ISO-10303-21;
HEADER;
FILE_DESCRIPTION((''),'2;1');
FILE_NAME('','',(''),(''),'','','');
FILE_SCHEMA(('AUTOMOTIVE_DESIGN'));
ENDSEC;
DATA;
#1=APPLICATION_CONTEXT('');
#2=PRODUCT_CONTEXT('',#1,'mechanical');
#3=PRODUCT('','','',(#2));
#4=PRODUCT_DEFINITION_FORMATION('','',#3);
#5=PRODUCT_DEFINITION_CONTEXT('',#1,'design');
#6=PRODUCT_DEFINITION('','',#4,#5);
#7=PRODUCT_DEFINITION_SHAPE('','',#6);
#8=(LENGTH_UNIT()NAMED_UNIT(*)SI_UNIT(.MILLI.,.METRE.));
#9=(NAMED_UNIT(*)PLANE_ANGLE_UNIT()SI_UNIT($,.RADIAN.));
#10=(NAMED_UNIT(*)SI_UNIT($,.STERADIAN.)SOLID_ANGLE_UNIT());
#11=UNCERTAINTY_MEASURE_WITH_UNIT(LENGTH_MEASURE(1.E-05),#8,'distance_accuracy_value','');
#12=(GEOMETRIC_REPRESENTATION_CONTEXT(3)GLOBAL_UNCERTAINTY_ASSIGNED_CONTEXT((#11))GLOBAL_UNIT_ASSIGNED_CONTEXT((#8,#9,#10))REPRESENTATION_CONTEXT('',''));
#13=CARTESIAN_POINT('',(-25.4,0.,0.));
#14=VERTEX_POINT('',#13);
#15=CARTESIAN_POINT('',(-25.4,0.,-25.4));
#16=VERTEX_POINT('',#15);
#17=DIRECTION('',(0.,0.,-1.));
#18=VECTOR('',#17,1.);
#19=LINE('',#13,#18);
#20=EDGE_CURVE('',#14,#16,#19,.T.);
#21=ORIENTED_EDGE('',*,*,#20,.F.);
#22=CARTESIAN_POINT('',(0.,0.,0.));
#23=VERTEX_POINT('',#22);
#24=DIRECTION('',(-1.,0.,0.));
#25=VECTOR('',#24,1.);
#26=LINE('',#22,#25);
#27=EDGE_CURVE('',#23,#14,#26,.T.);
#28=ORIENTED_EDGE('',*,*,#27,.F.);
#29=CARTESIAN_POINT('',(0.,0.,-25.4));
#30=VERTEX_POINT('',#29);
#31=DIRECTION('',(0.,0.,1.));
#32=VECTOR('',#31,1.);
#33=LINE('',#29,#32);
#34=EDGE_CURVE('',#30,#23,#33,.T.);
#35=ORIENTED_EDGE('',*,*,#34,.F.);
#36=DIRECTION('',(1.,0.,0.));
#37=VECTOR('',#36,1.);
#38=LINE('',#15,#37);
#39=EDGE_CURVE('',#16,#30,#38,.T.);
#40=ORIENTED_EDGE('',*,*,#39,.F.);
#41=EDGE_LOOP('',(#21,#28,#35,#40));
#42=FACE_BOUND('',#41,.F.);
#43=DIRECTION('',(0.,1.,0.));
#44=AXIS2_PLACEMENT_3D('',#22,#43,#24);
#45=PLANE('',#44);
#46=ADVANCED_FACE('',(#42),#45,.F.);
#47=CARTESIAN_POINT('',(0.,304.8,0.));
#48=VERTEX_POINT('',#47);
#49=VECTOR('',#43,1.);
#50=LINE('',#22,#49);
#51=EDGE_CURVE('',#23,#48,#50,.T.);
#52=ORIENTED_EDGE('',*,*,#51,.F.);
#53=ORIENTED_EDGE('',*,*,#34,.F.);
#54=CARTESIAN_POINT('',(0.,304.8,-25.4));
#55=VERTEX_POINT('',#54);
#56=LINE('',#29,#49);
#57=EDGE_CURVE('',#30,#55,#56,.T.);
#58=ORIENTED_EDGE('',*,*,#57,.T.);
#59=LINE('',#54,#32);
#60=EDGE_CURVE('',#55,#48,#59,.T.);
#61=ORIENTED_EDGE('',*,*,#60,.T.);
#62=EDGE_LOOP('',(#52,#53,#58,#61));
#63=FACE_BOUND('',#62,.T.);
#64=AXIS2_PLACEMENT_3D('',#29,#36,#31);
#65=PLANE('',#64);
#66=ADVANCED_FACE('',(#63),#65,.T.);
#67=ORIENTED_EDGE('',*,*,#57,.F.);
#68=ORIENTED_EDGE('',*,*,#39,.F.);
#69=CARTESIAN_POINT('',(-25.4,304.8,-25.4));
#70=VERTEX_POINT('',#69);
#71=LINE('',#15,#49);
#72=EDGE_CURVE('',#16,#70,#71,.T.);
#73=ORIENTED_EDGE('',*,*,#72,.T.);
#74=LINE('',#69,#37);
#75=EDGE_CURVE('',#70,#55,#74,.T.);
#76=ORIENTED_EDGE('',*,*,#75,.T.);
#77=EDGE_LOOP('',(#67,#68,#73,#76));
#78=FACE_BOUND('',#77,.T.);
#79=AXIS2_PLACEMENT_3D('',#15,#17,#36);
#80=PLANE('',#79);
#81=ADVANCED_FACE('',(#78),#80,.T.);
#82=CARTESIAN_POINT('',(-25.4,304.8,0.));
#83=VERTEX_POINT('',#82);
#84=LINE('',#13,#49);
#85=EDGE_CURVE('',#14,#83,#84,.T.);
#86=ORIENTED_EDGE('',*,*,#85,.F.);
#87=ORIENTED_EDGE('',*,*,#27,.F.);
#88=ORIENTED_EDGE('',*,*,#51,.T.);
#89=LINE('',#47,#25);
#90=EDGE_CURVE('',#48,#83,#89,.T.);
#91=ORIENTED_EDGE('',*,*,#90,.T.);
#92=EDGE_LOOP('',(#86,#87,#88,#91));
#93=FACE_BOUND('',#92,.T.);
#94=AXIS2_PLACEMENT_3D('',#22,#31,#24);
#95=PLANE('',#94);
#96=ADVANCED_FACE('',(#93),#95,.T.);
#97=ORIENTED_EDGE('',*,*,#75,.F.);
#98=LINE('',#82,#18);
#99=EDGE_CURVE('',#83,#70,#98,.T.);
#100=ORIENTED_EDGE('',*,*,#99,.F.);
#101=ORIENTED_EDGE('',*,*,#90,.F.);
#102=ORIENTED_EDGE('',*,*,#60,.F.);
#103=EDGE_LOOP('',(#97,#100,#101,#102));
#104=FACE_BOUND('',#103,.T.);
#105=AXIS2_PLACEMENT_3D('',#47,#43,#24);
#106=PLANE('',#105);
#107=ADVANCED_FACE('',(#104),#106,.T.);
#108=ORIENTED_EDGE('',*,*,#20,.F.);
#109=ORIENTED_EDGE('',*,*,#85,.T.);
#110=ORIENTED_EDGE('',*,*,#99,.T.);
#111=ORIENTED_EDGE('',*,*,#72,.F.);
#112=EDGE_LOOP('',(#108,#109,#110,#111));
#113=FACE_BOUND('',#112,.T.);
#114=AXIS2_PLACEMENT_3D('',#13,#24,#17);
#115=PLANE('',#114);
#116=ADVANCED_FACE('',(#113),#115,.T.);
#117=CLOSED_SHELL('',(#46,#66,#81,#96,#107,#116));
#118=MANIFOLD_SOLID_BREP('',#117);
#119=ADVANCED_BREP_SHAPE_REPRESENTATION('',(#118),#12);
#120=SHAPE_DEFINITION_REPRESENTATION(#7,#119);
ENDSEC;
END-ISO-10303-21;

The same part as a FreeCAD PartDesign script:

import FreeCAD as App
import Part
import Sketcher

V = App.Vector
Q = App.Units.Quantity


def add_polygon(sketch, points):
    """Adds a closed chain of lines whose ends are joined by coincident constraints."""
    first, n = sketch.GeometryCount, len(points)
    for a, b in zip(points, points[1:] + points[:1]):
        sketch.addGeometry(Part.LineSegment(App.Vector(*a, 0), App.Vector(*b, 0)), False)
    for i in range(n):
        sketch.addConstraint(Sketcher.Constraint("Coincident", first + i, 2, first + (i + 1) % n, 1))

doc = App.newDocument("Part")
params = doc.addObject("Spreadsheet::Sheet", "Params")
for row, (alias, value) in enumerate([
    ("sketch1_width", "1 in"),
    ("pad1_length", "12 in"),
], start=1):
    params.set(f"A{row}", alias)
    params.set(f"B{row}", "=" + value)
    params.setAlias(f"B{row}", alias)

body = doc.addObject("PartDesign::Body", "Body")

# Sketch on XZ plane
sketch1 = body.newObject("Sketcher::SketchObject", "Sketch")
sketch1.AttachmentSupport = (doc.getObject("XZ_Plane"), [""])
sketch1.MapMode = "FlatFace"
add_polygon(sketch1, [(-25, 0), (0, 0), (0, -25), (-25, -25)])  # lines 0-3
sketch1.addConstraint([
    Sketcher.Constraint("Horizontal", 0),
    Sketcher.Constraint("Vertical", 1),
    Sketcher.Constraint("Horizontal", 2),
    Sketcher.Constraint("Vertical", 3),
    Sketcher.Constraint("Coincident", 0, 2, -1, 1),
    Sketcher.Constraint("Equal", 2, 1),
    Sketcher.Constraint("DistanceX", 0, 1, 0, 2, Q("1 in")),
])
sketch1.setExpression("Constraints[10]", "Params.sketch1_width")
pad1 = body.newObject("PartDesign::Pad", "Pad")
pad1.Profile = sketch1
pad1.setExpression("Length", "Params.pad1_length")
pad1.Reversed = True

doc.recompute()
